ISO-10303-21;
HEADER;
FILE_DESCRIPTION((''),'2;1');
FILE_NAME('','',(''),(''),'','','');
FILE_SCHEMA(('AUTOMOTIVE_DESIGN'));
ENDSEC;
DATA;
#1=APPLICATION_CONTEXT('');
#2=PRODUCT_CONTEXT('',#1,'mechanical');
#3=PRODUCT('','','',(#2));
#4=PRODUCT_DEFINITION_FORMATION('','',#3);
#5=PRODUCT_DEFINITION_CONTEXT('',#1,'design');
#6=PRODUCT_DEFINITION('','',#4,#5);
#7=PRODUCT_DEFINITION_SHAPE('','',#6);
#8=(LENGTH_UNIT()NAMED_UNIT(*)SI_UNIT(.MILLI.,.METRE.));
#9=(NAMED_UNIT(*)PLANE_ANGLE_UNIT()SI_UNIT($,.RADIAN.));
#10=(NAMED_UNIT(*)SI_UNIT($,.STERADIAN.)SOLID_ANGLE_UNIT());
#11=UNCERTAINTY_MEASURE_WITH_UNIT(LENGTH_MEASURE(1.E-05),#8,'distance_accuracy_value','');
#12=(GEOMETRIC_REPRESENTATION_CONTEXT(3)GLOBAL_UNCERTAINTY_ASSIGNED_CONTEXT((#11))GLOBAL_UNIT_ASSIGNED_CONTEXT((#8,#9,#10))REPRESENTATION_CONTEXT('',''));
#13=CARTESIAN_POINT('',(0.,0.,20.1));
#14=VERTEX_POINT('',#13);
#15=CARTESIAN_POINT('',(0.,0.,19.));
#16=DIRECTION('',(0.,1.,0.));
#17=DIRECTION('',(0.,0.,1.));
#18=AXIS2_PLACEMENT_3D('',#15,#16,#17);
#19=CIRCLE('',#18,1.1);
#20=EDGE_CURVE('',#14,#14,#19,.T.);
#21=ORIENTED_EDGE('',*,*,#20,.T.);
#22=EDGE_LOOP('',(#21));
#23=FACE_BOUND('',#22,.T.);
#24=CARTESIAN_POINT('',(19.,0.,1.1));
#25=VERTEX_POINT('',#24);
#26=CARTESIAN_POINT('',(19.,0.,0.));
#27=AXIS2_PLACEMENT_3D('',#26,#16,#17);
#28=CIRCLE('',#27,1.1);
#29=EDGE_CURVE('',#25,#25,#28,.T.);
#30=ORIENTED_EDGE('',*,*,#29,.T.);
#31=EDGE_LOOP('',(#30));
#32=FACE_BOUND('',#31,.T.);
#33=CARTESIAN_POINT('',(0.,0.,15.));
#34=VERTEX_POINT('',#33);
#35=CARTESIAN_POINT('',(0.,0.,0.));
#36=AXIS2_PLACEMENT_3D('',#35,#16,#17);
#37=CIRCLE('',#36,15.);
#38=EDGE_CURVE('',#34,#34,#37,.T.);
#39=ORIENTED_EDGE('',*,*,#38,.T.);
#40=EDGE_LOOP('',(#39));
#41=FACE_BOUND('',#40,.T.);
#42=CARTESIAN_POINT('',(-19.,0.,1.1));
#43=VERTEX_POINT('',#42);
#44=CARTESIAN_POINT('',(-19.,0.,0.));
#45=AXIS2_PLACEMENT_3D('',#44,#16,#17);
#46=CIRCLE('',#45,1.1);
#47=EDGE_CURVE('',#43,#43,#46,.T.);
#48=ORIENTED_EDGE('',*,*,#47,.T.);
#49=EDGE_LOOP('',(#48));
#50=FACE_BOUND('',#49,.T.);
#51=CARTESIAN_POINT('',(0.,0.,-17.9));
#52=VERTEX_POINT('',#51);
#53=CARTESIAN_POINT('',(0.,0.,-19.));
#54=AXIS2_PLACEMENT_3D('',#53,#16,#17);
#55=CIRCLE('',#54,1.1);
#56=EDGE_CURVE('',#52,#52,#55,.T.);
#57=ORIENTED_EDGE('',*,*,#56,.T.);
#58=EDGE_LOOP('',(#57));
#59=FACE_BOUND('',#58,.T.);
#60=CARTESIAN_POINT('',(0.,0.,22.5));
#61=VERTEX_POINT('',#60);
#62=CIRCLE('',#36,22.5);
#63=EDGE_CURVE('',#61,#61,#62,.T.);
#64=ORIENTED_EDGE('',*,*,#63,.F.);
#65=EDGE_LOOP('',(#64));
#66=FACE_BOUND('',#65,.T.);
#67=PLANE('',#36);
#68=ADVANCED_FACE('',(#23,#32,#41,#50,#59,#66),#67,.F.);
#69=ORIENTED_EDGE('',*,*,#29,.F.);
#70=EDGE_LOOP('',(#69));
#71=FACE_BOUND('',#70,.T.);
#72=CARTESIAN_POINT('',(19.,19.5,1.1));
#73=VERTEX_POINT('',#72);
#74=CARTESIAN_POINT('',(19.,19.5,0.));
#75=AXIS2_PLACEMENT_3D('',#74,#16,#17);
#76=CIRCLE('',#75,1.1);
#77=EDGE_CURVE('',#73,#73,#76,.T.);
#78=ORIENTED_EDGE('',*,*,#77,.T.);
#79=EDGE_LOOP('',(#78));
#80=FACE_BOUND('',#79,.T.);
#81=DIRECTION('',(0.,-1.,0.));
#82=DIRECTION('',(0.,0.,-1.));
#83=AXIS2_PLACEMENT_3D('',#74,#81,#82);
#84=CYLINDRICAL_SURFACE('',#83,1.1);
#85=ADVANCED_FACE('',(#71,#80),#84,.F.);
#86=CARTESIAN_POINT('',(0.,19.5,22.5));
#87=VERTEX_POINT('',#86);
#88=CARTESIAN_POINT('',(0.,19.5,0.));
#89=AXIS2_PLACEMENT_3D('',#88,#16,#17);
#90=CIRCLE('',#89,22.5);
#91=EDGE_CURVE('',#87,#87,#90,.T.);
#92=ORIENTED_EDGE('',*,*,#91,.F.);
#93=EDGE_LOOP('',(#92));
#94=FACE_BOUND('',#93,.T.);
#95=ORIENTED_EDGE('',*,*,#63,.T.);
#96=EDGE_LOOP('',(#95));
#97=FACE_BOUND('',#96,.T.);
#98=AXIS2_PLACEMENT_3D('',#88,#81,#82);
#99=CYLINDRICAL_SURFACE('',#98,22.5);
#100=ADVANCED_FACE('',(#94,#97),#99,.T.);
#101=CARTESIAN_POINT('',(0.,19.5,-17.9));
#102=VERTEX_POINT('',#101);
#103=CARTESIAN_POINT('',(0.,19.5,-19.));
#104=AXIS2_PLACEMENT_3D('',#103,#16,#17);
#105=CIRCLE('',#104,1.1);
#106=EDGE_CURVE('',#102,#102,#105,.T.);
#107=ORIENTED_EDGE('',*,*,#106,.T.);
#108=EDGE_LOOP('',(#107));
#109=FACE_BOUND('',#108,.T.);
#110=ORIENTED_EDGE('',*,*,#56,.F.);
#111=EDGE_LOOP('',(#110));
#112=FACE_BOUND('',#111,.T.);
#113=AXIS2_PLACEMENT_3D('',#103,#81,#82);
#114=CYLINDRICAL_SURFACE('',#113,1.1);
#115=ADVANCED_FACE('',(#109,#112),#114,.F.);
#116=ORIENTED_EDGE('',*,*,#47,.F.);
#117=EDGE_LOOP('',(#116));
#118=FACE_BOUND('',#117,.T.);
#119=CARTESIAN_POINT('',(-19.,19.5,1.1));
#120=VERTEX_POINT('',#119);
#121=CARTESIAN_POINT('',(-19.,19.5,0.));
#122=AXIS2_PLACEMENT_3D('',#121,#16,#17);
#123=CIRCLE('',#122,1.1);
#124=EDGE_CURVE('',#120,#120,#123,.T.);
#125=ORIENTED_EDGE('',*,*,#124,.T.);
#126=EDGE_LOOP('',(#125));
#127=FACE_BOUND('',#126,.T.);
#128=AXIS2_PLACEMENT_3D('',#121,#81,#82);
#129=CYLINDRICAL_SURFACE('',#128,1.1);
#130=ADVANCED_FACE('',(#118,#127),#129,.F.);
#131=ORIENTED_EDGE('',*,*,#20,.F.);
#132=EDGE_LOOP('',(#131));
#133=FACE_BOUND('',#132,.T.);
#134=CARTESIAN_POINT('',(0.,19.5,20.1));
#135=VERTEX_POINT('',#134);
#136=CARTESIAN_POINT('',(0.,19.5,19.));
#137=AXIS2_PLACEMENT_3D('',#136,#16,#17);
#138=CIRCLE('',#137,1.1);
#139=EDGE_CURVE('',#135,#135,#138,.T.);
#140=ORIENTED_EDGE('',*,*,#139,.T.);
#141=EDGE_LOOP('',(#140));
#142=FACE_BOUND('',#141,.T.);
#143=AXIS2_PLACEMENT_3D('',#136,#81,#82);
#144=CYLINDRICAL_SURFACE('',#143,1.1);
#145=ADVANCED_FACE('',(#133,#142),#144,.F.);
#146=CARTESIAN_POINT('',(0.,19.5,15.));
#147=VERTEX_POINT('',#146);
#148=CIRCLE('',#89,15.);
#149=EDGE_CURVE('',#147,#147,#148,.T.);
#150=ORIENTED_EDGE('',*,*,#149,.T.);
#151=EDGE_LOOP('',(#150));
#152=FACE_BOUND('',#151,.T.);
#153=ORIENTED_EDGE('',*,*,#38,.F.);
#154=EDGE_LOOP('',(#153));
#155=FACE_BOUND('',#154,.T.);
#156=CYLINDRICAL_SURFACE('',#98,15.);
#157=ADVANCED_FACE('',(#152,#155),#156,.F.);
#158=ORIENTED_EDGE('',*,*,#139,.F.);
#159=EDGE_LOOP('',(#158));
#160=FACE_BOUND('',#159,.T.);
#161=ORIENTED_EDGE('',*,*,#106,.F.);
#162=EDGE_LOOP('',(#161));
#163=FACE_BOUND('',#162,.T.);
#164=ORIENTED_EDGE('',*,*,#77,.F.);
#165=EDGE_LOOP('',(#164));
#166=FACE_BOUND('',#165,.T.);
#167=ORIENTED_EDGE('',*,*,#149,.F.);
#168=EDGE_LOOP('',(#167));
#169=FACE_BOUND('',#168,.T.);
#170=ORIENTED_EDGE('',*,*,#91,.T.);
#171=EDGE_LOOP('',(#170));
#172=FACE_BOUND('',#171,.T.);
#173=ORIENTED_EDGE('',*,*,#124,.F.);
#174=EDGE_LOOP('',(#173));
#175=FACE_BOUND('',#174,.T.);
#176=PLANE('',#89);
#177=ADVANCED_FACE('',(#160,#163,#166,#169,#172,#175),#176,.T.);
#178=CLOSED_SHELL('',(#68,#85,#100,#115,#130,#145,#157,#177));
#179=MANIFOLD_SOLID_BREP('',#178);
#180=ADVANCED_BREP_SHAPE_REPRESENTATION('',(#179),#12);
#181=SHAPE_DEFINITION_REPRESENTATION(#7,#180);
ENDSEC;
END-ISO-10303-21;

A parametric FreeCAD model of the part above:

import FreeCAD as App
import Part
import Sketcher
from FreeCAD import Vector

doc = App.newDocument("Part")
body = doc.addObject("PartDesign::Body", "Body")

sketch1 = body.newObject("Sketcher::SketchObject", "Sketch")
sketch1.AttachmentSupport = (doc.getObject("XZ_Plane"), [""])
sketch1.MapMode = "FlatFace"
sketch1.addGeometry([
    Part.Circle(Vector(0, 0, 0), Vector(0, 0, 1), 22.5),
    Part.Circle(Vector(0, -19, 0), Vector(0, 0, 1), 1.1),
    Part.Circle(Vector(-19, 0, 0), Vector(0, 0, 1), 1.1),
    Part.Circle(Vector(19, 0, 0), Vector(0, 0, 1), 1.1),
    Part.Circle(Vector(0, 0, 0), Vector(0, 0, 1), 15),
    Part.Circle(Vector(0, 19, 0), Vector(0, 0, 1), 1.1),
], False)
sketch1.addConstraint([
    Sketcher.Constraint("Coincident", 0, 3, -1, 1),
    Sketcher.Constraint("Coincident", 4, 3, -1, 1),
    Sketcher.Constraint("Equal", 1, 2),
    Sketcher.Constraint("Equal", 2, 3),
    Sketcher.Constraint("Equal", 3, 5),
    Sketcher.Constraint("Symmetric", 2, 3, 3, 3, -1, 1),
    Sketcher.Constraint("Symmetric", 1, 3, 5, 3, -1, 1),
    Sketcher.Constraint("PointOnObject", 1, 3, -2),
    Sketcher.Constraint("PointOnObject", 2, 3, -1),
    Sketcher.Constraint("Diameter", 0, 45.0),
    Sketcher.Constraint("Diameter", 4, 30.0),
    Sketcher.Constraint("Diameter", 1, 2.2),
    Sketcher.Constraint("DistanceY", 1, 3, -1, 1, 19.0),
    Sketcher.Constraint("DistanceX", 2, 3, -1, 1, 19.0),
])
pad1 = body.newObject("PartDesign::Pad", "Pad")
pad1.Profile = sketch1
pad1.Length = 19.5
pad1.Reversed = True

doc.recompute()
